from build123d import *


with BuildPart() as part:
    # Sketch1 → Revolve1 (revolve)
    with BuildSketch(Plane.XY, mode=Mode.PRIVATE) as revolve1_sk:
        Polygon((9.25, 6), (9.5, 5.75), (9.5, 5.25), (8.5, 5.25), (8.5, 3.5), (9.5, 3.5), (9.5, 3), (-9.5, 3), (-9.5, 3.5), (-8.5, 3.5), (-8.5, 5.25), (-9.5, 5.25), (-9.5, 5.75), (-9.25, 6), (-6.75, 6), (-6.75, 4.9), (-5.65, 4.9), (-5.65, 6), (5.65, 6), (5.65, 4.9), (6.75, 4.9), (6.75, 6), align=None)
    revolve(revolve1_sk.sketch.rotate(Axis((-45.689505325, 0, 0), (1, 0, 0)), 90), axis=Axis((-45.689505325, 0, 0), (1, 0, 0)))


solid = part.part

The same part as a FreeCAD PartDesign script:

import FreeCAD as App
import Part
import Sketcher
Q = App.Units.Quantity


def add_polygon(sketch, points):
    """Adds a closed chain of lines whose ends are joined by coincident constraints."""
    first, n = sketch.GeometryCount, len(points)
    for a, b in zip(points, points[1:] + points[:1]):
        sketch.addGeometry(Part.LineSegment(App.Vector(*a, 0), App.Vector(*b, 0)), False)
    for i in range(n):
        sketch.addConstraint(Sketcher.Constraint("Coincident", first + i, 2, first + (i + 1) % n, 1))

doc = App.newDocument("Part")
body = doc.addObject("PartDesign::Body", "Body")

sketch1 = doc.addObject("Sketcher::SketchObject", "Sketch")
body.addObject(sketch1)
sketch1.AttachmentSupport = (doc.XY_Plane, [""])
sketch1.MapMode = "FlatFace"
add_polygon(sketch1, [(9.5, 5.75), (9.25, 6), (6.75, 6), (6.75, 4.9), (5.65, 4.9), (5.65, 6), (-5.65, 6), (-5.65, 4.9), (-6.75, 4.9), (-6.75, 6), (-9.25, 6), (-9.5, 5.75), (-9.5, 5.25), (-8.5, 5.25), (-8.5, 3.5), (-9.5, 3.5), (-9.5, 3), (9.5, 3), (9.5, 3.5), (8.5, 3.5), (8.5, 5.25), (9.5, 5.25)])
sketch1.addConstraint([
    Sketcher.Constraint("Horizontal", 1),
    Sketcher.Constraint("Vertical", 2),
    Sketcher.Constraint("Horizontal", 3),
    Sketcher.Constraint("Vertical", 4),
    Sketcher.Constraint("Horizontal", 5),
    Sketcher.Constraint("Vertical", 6),
    Sketcher.Constraint("Horizontal", 7),
    Sketcher.Constraint("Vertical", 8),
    Sketcher.Constraint("Horizontal", 9),
    Sketcher.Constraint("Vertical", 11),
    Sketcher.Constraint("Horizontal", 12),
    Sketcher.Constraint("Vertical", 13),
    Sketcher.Constraint("Horizontal", 14),
    Sketcher.Constraint("Vertical", 15),
    Sketcher.Constraint("Horizontal", 16),
    Sketcher.Constraint("Vertical", 17),
    Sketcher.Constraint("Horizontal", 18),
    Sketcher.Constraint("Vertical", 19),
    Sketcher.Constraint("Horizontal", 20),
    Sketcher.Constraint("Vertical", 21),
    Sketcher.Constraint("Symmetric", 3, 2, 6, 2, -2),
    Sketcher.Constraint("Symmetric", 1, 2, 8, 2, -2),
    Sketcher.Constraint("Symmetric", 14, 2, 17, 2, -2),
    Sketcher.Constraint("Symmetric", 12, 2, 19, 2, -2),
    Sketcher.Constraint("Symmetric", 10, 2, 21, 2, -2),
    Sketcher.Constraint("Perpendicular", 0, 10),
    Sketcher.Constraint("Horizontal", 1, 2, 4, 2),
    Sketcher.Constraint("Vertical", 11, 2, 14, 2),
    Sketcher.Constraint("Equal", 1, 9),
    Sketcher.Constraint("Equal", 7, 2),
    Sketcher.Constraint("Equal", 11, 15),
    Sketcher.Constraint("DistanceX", 12, 1, 12, 2, Q("1 mm")),
    Sketcher.Constraint("DistanceX", 16, 1, 16, 2, Q("19 mm")),
    Sketcher.Constraint("DistanceX", 1, 2, 1, 1, Q("2.5 mm")),
    Sketcher.Constraint("DistanceX", 3, 2, 3, 1, Q("1.1 mm")),
    Sketcher.Constraint("DistanceX", 5, 2, 5, 1, Q("11.3 mm")),
    Sketcher.Constraint("DistanceY", 11, 2, 11, 1, Q("0.5 mm")),
    Sketcher.Constraint("DistanceY", -1, 1, 0, 2, Q("6 mm")),
    Sketcher.Constraint("DistanceY", -1, 1, 15, 2, Q("3 mm")),
])
revolution = doc.addObject("PartDesign::Revolution", "Revolution")
body.addObject(revolution)
revolution.Profile = sketch1
revolution.ReferenceAxis = (sketch1, ["H_Axis"])
revolution.Angle = 360

doc.recompute()
